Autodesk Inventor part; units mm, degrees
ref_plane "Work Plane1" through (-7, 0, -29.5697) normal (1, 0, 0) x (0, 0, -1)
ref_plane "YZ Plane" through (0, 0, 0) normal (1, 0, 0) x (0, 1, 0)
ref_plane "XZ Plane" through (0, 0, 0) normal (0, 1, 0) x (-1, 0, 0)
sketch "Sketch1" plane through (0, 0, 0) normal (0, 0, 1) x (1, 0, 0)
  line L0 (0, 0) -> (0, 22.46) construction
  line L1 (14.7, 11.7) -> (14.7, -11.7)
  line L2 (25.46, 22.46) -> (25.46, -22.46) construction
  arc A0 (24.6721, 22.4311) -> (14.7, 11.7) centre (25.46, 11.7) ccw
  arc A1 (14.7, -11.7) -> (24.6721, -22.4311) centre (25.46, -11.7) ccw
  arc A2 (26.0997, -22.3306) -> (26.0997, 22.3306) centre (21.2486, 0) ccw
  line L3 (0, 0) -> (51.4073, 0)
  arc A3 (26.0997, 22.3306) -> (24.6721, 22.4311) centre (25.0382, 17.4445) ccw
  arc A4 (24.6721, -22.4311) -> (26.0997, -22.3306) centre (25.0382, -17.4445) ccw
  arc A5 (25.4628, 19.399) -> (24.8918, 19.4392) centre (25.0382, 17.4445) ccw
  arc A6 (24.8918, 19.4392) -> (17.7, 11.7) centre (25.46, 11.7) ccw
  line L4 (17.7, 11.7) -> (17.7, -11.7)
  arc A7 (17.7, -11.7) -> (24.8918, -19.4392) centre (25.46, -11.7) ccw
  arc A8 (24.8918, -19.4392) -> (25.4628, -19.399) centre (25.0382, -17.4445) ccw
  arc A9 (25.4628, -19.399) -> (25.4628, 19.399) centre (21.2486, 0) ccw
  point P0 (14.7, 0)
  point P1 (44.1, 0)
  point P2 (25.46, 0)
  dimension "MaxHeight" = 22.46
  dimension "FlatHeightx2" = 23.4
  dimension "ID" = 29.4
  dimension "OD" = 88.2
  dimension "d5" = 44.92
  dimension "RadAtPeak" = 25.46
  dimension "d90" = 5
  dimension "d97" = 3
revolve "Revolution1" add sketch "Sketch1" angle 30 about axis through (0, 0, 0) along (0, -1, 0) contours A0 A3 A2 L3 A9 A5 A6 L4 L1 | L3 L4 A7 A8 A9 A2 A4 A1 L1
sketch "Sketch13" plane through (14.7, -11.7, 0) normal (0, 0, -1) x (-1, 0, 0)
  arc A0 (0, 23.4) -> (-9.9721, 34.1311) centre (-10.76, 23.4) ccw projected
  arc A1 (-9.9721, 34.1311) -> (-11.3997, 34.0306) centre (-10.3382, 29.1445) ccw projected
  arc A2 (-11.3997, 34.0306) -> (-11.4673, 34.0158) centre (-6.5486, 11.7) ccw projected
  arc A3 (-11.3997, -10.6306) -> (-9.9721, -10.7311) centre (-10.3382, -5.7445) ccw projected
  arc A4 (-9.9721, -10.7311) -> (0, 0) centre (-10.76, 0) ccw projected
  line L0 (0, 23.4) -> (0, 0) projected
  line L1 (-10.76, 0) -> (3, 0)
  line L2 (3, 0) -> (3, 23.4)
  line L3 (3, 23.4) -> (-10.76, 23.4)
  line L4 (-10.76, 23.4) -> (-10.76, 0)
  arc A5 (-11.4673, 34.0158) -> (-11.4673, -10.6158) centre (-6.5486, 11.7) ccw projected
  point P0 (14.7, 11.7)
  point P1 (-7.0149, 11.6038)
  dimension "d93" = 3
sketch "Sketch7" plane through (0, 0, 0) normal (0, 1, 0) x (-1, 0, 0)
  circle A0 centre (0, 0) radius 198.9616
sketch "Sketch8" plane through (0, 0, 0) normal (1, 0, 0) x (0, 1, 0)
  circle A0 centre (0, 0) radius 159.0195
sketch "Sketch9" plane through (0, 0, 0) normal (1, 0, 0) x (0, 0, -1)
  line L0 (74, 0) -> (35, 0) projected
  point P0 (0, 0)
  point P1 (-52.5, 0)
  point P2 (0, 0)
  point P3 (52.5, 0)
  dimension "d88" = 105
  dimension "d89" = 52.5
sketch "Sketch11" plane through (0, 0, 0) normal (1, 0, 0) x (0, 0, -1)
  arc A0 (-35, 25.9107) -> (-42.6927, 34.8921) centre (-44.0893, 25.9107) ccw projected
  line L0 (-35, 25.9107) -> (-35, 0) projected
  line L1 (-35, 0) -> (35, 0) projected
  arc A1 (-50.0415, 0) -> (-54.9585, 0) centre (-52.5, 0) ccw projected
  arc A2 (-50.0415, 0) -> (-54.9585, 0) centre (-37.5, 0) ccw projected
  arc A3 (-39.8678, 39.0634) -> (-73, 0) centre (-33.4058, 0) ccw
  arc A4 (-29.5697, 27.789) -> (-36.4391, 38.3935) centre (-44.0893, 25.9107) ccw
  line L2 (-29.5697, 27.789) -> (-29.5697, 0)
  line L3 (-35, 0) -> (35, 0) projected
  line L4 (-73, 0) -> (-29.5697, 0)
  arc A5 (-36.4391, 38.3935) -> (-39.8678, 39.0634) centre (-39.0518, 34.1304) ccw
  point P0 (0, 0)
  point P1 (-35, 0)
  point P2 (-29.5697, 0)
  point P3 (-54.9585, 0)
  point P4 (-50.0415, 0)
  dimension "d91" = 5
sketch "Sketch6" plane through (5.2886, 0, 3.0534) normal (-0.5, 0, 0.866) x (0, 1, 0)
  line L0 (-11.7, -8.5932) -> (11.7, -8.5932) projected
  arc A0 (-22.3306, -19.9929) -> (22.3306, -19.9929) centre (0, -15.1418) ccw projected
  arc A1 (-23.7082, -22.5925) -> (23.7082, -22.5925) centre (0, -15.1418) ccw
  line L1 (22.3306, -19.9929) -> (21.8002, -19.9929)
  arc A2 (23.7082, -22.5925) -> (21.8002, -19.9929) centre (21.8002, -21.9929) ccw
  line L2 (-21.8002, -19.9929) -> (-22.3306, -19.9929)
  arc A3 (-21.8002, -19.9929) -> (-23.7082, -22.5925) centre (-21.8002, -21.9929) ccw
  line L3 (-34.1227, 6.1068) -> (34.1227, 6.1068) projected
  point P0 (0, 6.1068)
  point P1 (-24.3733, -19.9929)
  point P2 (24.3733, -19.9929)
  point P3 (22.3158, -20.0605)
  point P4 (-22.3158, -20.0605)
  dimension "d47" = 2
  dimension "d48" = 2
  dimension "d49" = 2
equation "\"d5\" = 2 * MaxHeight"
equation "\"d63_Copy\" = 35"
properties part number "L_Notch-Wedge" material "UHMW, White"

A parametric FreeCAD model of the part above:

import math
import FreeCAD as App
import Part
import Sketcher
from FreeCAD import Vector

doc = App.newDocument("Part")
params = doc.addObject("Spreadsheet::Sheet", "Params")
for row, (alias, value) in enumerate([
    ("sketch1_height", "23.4 mm"),
    ("sketch1_height2", "23.4 mm"),
    ("sketch1_radius", "10.76 mm"),
    ("revolution_angle", "30 deg"),
], start=1):
    params.set(f"A{row}", alias)
    params.set(f"B{row}", "=" + value)
    params.setAlias(f"B{row}", alias)

body = doc.addObject("PartDesign::Body", "Body")

# Sketch on XY plane
sketch1 = body.newObject("Sketcher::SketchObject", "Sketch")
sketch1.AttachmentSupport = (doc.getObject("XY_Plane"), [""])
sketch1.MapMode = "FlatFace"
sketch1.addGeometry([
    Part.ArcOfCircle(Part.Circle(Vector(25.46, 11.7, 0), Vector(0, 0, 1), 10.759986), math.radians(94.199242), math.radians(180)),  # 0
    Part.LineSegment(Vector(14.7, 11.7, 0), Vector(14.7, -11.7, 0)),  # 1
    Part.ArcOfCircle(Part.Circle(Vector(25.46, -11.7, 0), Vector(0, 0, 1), 10.76), math.radians(180), math.radians(265.800758)),  # 2
    Part.ArcOfCircle(Part.Circle(Vector(25.038204, -17.441836, 0), Vector(0, 0, 1), 5.002678), math.radians(-94.196748), math.radians(-77.749537)),  # 3
    Part.ArcOfCircle(Part.Circle(Vector(21.2486, 0, 0), Vector(0, 0, 1), 22.851452), math.radians(-77.743503), math.radians(77.743503)),  # 4
    Part.ArcOfCircle(Part.Circle(Vector(25.038577, 17.447134, 0), Vector(0, 0, 1), 4.997421), math.radians(77.740827), math.radians(94.205458)),  # 5
    Part.ArcOfCircle(Part.Circle(Vector(21.2486, 0, 0), Vector(0, 0, 1), 19.851466), math.radians(-77.743614), math.radians(77.743614)),  # 6
    Part.ArcOfCircle(Part.Circle(Vector(25.038202, -17.44335, 0), Vector(0, 0, 1), 2.001212), math.radians(-94.195307), math.radians(-77.750416)),  # 7
    Part.ArcOfCircle(Part.Circle(Vector(25.46, -11.7, 0), Vector(0, 0, 1), 7.76), math.radians(180), math.radians(265.800967)),  # 8
    Part.LineSegment(Vector(17.7, -11.7, 0), Vector(17.7, 11.7, 0)),  # 9
    Part.ArcOfCircle(Part.Circle(Vector(25.46, 11.7, 0), Vector(0, 0, 1), 7.76003), math.radians(94.199033), math.radians(180)),  # 10
    Part.ArcOfCircle(Part.Circle(Vector(25.038363, 17.445637, 0), Vector(0, 0, 1), 1.998943), math.radians(77.74102), math.radians(94.204703)),  # 11
], False)
sketch1.addConstraint([
    Sketcher.Constraint("Coincident", 0, 2, 1, 1),
    Sketcher.Constraint("Coincident", 1, 2, 2, 1),
    Sketcher.Constraint("Coincident", 2, 2, 3, 1),
    Sketcher.Constraint("Coincident", 3, 2, 4, 1),
    Sketcher.Constraint("Coincident", 4, 2, 5, 1),
    Sketcher.Constraint("Coincident", 5, 2, 0, 1),
    Sketcher.Constraint("Coincident", 6, 1, 7, 2),
    Sketcher.Constraint("Coincident", 7, 1, 8, 2),
    Sketcher.Constraint("Coincident", 8, 1, 9, 1),
    Sketcher.Constraint("Coincident", 9, 2, 10, 2),
    Sketcher.Constraint("Coincident", 10, 1, 11, 2),
    Sketcher.Constraint("Coincident", 11, 1, 6, 2),
    Sketcher.Constraint("Vertical", 1),
    Sketcher.Constraint("Vertical", 9),
    Sketcher.Constraint("Coincident", 6, 3, 4, 3),
    Sketcher.Constraint("Coincident", 8, 3, 2, 3),
    Sketcher.Constraint("Coincident", 10, 3, 0, 3),
    Sketcher.Constraint("PointOnObject", 4, 3, -1),
    Sketcher.Constraint("DistanceY", 1, 2, 1, 1, 23.4),
    Sketcher.Constraint("DistanceY", 9, 1, 9, 2, 23.4),
    Sketcher.Constraint("DistanceX", 1, 2, 8, 1, 3.0),
    Sketcher.Constraint("DistanceY", 2, 3, 0, 3, 23.4),
    Sketcher.Constraint("DistanceX", -1, 1, 0, 3, 25.46),
    Sketcher.Constraint("DistanceX", -1, 1, 2, 3, 25.46),
    Sketcher.Constraint("Radius", 0, 10.76),
    Sketcher.Constraint("Radius", 11, 1.999),
    Sketcher.Constraint("DistanceY", -1, 1, 0, 3, 11.7),
    Sketcher.Constraint("DistanceY", -1, 1, 0, 2, 11.7),
    Sketcher.Constraint("DistanceY", 8, 1, -1, 1, 11.7),
    Sketcher.Constraint("Radius", 3, 5.0027),
    Sketcher.Constraint("Radius", 4, 22.8515),
    Sketcher.Constraint("Radius", 5, 4.9974),
    Sketcher.Constraint("Radius", 6, 19.8515),
    Sketcher.Constraint("Radius", 7, 2.0012),
    Sketcher.Constraint("DistanceX", 4, 3, 5, 3, 3.79),
    Sketcher.Constraint("DistanceX", -1, 1, 2, 2, 24.672),
    Sketcher.Constraint("DistanceX", -1, 1, 5, 2, 24.672),
    Sketcher.Constraint("DistanceY", 6, 1, -1, 1, 19.399),
    Sketcher.Constraint("DistanceY", -1, 1, 11, 1, 19.399),
    Sketcher.Constraint("DistanceY", 11, 3, 4, 2, 4.885),
    Sketcher.Constraint("DistanceX", 6, 1, 3, 2, 0.637),
    Sketcher.Constraint("DistanceX", 7, 1, 6, 1, 0.571),
    Sketcher.Constraint("DistanceY", 5, 3, 10, 1, 1.992),
])
sketch1.setExpression("Constraints[18]", "Params.sketch1_height")
sketch1.setExpression("Constraints[19]", "Params.sketch1_height2")
sketch1.setExpression("Constraints[24]", "Params.sketch1_radius")
revolution = body.newObject("PartDesign::Revolution", "Revolution")
revolution.Profile = sketch1
revolution.ReferenceAxis = (sketch1, ["V_Axis"])
revolution.setExpression("Angle", "Params.revolution_angle")
revolution.Reversed = True

doc.recompute()
